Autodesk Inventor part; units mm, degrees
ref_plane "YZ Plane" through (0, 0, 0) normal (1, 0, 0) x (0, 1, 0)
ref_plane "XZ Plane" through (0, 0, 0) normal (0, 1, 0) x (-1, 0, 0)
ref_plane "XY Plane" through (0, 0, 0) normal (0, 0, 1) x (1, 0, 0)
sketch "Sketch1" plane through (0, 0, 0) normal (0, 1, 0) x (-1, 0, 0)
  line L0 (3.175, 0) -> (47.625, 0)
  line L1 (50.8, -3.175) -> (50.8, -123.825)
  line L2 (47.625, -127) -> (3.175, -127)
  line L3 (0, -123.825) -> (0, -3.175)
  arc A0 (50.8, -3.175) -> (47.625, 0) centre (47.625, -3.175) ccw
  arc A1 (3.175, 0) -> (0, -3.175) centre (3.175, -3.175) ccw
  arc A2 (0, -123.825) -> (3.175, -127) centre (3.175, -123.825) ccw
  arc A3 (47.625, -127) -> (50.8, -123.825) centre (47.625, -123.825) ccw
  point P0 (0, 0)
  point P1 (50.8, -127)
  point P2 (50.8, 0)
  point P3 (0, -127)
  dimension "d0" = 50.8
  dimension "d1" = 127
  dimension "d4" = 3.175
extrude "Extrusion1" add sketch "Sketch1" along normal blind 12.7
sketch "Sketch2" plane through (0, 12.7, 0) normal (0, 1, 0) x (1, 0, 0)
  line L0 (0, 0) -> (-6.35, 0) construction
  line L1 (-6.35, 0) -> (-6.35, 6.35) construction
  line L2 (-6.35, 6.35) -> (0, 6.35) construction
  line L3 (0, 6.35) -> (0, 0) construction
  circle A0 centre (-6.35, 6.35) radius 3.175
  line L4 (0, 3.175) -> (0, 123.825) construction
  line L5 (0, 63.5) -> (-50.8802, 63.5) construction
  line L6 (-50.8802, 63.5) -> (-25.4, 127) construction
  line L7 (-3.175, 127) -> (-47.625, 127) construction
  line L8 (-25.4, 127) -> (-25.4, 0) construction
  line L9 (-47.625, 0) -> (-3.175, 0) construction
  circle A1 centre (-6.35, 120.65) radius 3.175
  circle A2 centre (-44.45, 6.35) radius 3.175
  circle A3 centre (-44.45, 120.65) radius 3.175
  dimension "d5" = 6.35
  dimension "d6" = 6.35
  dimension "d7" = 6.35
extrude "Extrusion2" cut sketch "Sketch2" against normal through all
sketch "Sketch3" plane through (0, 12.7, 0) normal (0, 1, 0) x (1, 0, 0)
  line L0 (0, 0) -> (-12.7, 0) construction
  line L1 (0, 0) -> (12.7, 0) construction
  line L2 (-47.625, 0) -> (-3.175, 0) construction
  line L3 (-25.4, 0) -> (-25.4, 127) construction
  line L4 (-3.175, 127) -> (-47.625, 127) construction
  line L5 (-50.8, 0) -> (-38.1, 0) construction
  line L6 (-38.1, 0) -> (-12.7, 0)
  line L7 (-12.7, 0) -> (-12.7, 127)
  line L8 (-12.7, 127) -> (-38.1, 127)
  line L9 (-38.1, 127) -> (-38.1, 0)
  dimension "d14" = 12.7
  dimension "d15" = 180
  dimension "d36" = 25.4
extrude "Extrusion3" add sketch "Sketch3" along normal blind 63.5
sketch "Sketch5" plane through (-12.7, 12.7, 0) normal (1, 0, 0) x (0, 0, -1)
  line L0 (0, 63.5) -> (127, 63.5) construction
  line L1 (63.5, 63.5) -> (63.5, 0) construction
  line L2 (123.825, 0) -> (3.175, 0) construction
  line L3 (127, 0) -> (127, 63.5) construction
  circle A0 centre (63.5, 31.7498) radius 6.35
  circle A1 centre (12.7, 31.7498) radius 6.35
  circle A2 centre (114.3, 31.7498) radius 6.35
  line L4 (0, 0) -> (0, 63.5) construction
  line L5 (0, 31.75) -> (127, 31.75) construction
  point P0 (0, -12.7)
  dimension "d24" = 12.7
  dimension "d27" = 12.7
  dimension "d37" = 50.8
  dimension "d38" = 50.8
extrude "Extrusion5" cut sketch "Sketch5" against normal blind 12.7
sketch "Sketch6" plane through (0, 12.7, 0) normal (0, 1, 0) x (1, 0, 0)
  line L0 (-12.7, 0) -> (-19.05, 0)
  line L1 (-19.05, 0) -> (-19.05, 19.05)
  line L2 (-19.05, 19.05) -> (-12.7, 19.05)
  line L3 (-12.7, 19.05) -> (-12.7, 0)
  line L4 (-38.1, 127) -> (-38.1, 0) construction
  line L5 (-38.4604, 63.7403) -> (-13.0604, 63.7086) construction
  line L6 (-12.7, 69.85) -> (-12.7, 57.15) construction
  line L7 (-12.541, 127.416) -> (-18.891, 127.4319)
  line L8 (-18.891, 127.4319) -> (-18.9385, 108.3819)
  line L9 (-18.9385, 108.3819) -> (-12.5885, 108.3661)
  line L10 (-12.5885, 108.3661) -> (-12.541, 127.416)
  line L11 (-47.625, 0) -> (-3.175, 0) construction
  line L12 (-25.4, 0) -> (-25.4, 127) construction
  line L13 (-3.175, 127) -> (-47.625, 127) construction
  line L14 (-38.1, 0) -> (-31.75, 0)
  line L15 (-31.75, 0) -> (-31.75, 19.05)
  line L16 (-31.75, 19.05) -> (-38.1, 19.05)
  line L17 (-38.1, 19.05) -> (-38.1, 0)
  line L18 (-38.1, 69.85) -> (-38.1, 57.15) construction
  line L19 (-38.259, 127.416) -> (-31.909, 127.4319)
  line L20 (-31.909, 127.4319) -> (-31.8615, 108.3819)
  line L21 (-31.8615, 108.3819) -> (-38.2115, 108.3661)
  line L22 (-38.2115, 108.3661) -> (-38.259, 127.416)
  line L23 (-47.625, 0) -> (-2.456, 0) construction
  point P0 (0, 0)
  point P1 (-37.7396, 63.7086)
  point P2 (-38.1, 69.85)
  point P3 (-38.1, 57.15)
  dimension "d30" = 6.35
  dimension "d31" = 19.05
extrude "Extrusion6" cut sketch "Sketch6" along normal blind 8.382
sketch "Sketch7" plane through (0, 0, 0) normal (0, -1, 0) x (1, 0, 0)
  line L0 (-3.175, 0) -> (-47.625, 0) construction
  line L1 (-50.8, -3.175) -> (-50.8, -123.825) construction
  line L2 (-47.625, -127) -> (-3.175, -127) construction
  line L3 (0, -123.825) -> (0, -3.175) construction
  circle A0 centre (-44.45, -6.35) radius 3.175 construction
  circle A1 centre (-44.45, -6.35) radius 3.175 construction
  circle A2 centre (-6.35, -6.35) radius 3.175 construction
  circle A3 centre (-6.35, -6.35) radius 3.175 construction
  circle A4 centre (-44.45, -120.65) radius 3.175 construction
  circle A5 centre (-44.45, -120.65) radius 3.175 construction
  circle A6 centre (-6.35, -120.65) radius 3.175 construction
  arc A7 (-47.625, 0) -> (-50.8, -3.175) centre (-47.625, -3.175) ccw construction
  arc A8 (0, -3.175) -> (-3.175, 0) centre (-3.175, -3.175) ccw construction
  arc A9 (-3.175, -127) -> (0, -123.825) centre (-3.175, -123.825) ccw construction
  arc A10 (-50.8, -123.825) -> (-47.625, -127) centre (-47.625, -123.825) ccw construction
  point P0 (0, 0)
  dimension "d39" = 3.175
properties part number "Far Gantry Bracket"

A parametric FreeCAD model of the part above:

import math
import FreeCAD as App
import Part
import Sketcher
Q = App.Units.Quantity

doc = App.newDocument("Part")
body = doc.addObject("PartDesign::Body", "Body")

# Sketch on XZ plane
sketch1 = doc.addObject("Sketcher::SketchObject", "Sketch")
body.addObject(sketch1)
sketch1.AttachmentSupport = (doc.XZ_Plane, [""])
sketch1.MapMode = "FlatFace"
sketch1.addGeometry(Part.LineSegment(App.Vector(-47.6, 0, 0), App.Vector(-3.2, 0, 0)), False)
sketch1.addGeometry(Part.ArcOfCircle(Part.Circle(App.Vector(-3.2, -3.2, 0), App.Vector(0, 0, 1), 3.2), math.radians(0), math.radians(90)), False)
sketch1.addGeometry(Part.LineSegment(App.Vector(0, -3.2, 0), App.Vector(0, -123.8, 0)), False)
sketch1.addGeometry(Part.ArcOfCircle(Part.Circle(App.Vector(-3.2, -123.8, 0), App.Vector(0, 0, 1), 3.2), math.radians(-90), math.radians(0)), False)
sketch1.addGeometry(Part.LineSegment(App.Vector(-3.2, -127, 0), App.Vector(-47.6, -127, 0)), False)
sketch1.addGeometry(Part.ArcOfCircle(Part.Circle(App.Vector(-47.6, -123.8, 0), App.Vector(0, 0, 1), 3.2), math.radians(180), math.radians(270)), False)
sketch1.addGeometry(Part.LineSegment(App.Vector(-50.8, -123.8, 0), App.Vector(-50.8, -3.2, 0)), False)
sketch1.addGeometry(Part.ArcOfCircle(Part.Circle(App.Vector(-47.6, -3.2, 0), App.Vector(0, 0, 1), 3.2), math.radians(90), math.radians(180)), False)
sketch1.addConstraint(Sketcher.Constraint("Tangent", 0, 2, 1, 2))
sketch1.addConstraint(Sketcher.Constraint("Tangent", 1, 1, 2, 1))
sketch1.addConstraint(Sketcher.Constraint("Tangent", 2, 2, 3, 2))
sketch1.addConstraint(Sketcher.Constraint("Tangent", 3, 1, 4, 1))
sketch1.addConstraint(Sketcher.Constraint("Tangent", 4, 2, 5, 2))
sketch1.addConstraint(Sketcher.Constraint("Tangent", 5, 1, 6, 1))
sketch1.addConstraint(Sketcher.Constraint("Tangent", 6, 2, 7, 2))
sketch1.addConstraint(Sketcher.Constraint("Tangent", 7, 1, 0, 1))
sketch1.addConstraint(Sketcher.Constraint("Horizontal", 0))
sketch1.addConstraint(Sketcher.Constraint("Vertical", 2))
sketch1.addConstraint(Sketcher.Constraint("Horizontal", 4))
sketch1.addConstraint(Sketcher.Constraint("Vertical", 6))
sketch1.addConstraint(Sketcher.Constraint("Equal", 1, 3))
sketch1.addConstraint(Sketcher.Constraint("Equal", 3, 5))
sketch1.addConstraint(Sketcher.Constraint("Equal", 5, 7))
sketch1.addConstraint(Sketcher.Constraint("PointOnObject", 0, 2, -1))
sketch1.addConstraint(Sketcher.Constraint("PointOnObject", 1, 1, -2))
sketch1.addConstraint(Sketcher.Constraint("DistanceY", 3, 1, -1, 1, Q("5 in")))
sketch1.addConstraint(Sketcher.Constraint("DistanceX", 5, 1, -1, 1, Q("2 in")))
sketch1.addConstraint(Sketcher.Constraint("Radius", 1, Q("0.125 in")))
pad1 = doc.addObject("PartDesign::Pad", "Pad")
body.addObject(pad1)
pad1.Profile = sketch1
pad1.Length = Q("0.5 in")
pad1.Reversed = True

# Sketch on XZ plane
sketch2 = doc.addObject("Sketcher::SketchObject", "Sketch001")
body.addObject(sketch2)
sketch2.AttachmentSupport = (doc.XZ_Plane, [""])
sketch2.MapMode = "FlatFace"
sketch2.AttachmentOffset = App.Placement(App.Vector(0, 0, -0.5 * 25.4), App.Rotation())
sketch2.addGeometry(Part.Circle(App.Vector(-6.3, -6.3, 0), App.Vector(0, 0, 1), 3.2), False)
sketch2.addGeometry(Part.Circle(App.Vector(-6.3, -120.7, 0), App.Vector(0, 0, 1), 3.2), False)
sketch2.addGeometry(Part.Circle(App.Vector(-44.5, -6.3, 0), App.Vector(0, 0, 1), 3.2), False)
sketch2.addGeometry(Part.Circle(App.Vector(-44.5, -120.7, 0), App.Vector(0, 0, 1), 3.2), False)
sketch2.addConstraint(Sketcher.Constraint("Equal", 0, 1))
sketch2.addConstraint(Sketcher.Constraint("Equal", 1, 2))
sketch2.addConstraint(Sketcher.Constraint("Equal", 2, 3))
sketch2.addConstraint(Sketcher.Constraint("Horizontal", 0, 3, 2, 3))
sketch2.addConstraint(Sketcher.Constraint("Horizontal", 1, 3, 3, 3))
sketch2.addConstraint(Sketcher.Constraint("Vertical", 0, 3, 1, 3))
sketch2.addConstraint(Sketcher.Constraint("Vertical", 2, 3, 3, 3))
sketch2.addConstraint(Sketcher.Constraint("Diameter", 0, Q("0.25 in")))
sketch2.addConstraint(Sketcher.Constraint("DistanceX", 0, 3, -1, 1, Q("0.25 in")))
sketch2.addConstraint(Sketcher.Constraint("DistanceY", 0, 3, -1, 1, Q("0.25 in")))
sketch2.addConstraint(Sketcher.Constraint("DistanceY", 1, 3, 0, 3, Q("4.5 in")))
sketch2.addConstraint(Sketcher.Constraint("DistanceX", 2, 3, 0, 3, Q("1.5 in")))
pocket1 = doc.addObject("PartDesign::Pocket", "Pocket")
body.addObject(pocket1)
pocket1.Profile = sketch2
pocket1.Type = "ThroughAll"
pocket1.Reversed = True

# Sketch on XZ plane
sketch3 = doc.addObject("Sketcher::SketchObject", "Sketch002")
body.addObject(sketch3)
sketch3.AttachmentSupport = (doc.XZ_Plane, [""])
sketch3.MapMode = "FlatFace"
sketch3.AttachmentOffset = App.Placement(App.Vector(0, 0, -0.5 * 25.4), App.Rotation())
sketch3.addGeometry(Part.LineSegment(App.Vector(-38, -127, 0), App.Vector(-38, 0, 0)), False)
sketch3.addGeometry(Part.LineSegment(App.Vector(-38, 0, 0), App.Vector(-13, 0, 0)), False)
sketch3.addGeometry(Part.LineSegment(App.Vector(-13, 0, 0), App.Vector(-13, -127, 0)), False)
sketch3.addGeometry(Part.LineSegment(App.Vector(-13, -127, 0), App.Vector(-38, -127, 0)), False)
sketch3.addConstraint(Sketcher.Constraint("Coincident", 0, 2, 1, 1))
sketch3.addConstraint(Sketcher.Constraint("Coincident", 1, 2, 2, 1))
sketch3.addConstraint(Sketcher.Constraint("Coincident", 2, 2, 3, 1))
sketch3.addConstraint(Sketcher.Constraint("Coincident", 3, 2, 0, 1))
sketch3.addConstraint(Sketcher.Constraint("Vertical", 0))
sketch3.addConstraint(Sketcher.Constraint("Horizontal", 1))
sketch3.addConstraint(Sketcher.Constraint("Vertical", 2))
sketch3.addConstraint(Sketcher.Constraint("Horizontal", 3))
sketch3.addConstraint(Sketcher.Constraint("PointOnObject", 0, 2, -1))
sketch3.addConstraint(Sketcher.Constraint("DistanceX", 1, 1, 1, 2, Q("1 in")))
sketch3.addConstraint(Sketcher.Constraint("DistanceX", 1, 2, -1, 1, Q("0.5 in")))
sketch3.addConstraint(Sketcher.Constraint("DistanceY", 0, 1, 0, 2, Q("5 in")))
pad2 = doc.addObject("PartDesign::Pad", "Pad001")
body.addObject(pad2)
pad2.Profile = sketch3
pad2.Length = Q("2.5 in")
pad2.Reversed = True

# Sketch on YZ plane
sketch4 = doc.addObject("Sketcher::SketchObject", "Sketch003")
body.addObject(sketch4)
sketch4.AttachmentSupport = (doc.YZ_Plane, [""])
sketch4.MapMode = "FlatFace"
sketch4.AttachmentOffset = App.Placement(App.Vector(0, 0, -0.5 * 25.4), App.Rotation())
sketch4.addGeometry(Part.Circle(App.Vector(44, -64, 0), App.Vector(0, 0, 1), 6), False)
sketch4.addGeometry(Part.Circle(App.Vector(44, -13, 0), App.Vector(0, 0, 1), 6), False)
sketch4.addGeometry(Part.Circle(App.Vector(44, -114, 0), App.Vector(0, 0, 1), 6), False)
sketch4.addConstraint(Sketcher.Constraint("Equal", 0, 1))
sketch4.addConstraint(Sketcher.Constraint("Equal", 1, 2))
sketch4.addConstraint(Sketcher.Constraint("Vertical", 0, 3, 1, 3))
sketch4.addConstraint(Sketcher.Constraint("Vertical", 1, 3, 2, 3))
sketch4.addConstraint(Sketcher.Constraint("Diameter", 0, Q("0.5 in")))
sketch4.addConstraint(Sketcher.Constraint("DistanceY", 0, 3, 1, 3, Q("2 in")))
sketch4.addConstraint(Sketcher.Constraint("DistanceY", 2, 3, 0, 3, Q("2 in")))
sketch4.addConstraint(Sketcher.Constraint("DistanceY", 1, 3, -1, 1, Q("0.5 in")))
sketch4.addConstraint(Sketcher.Constraint("DistanceX", -1, 1, 0, 3, Q("1.75 in")))
pocket2 = doc.addObject("PartDesign::Pocket", "Pocket001")
body.addObject(pocket2)
pocket2.Profile = sketch4
pocket2.Length = Q("0.5 in")

# Sketch on XZ plane
sketch5 = doc.addObject("Sketcher::SketchObject", "Sketch004")
body.addObject(sketch5)
sketch5.AttachmentSupport = (doc.XZ_Plane, [""])
sketch5.MapMode = "FlatFace"
sketch5.AttachmentOffset = App.Placement(App.Vector(0, 0, -0.5 * 25.4), App.Rotation())
sketch5.addGeometry(Part.LineSegment(App.Vector(-19, 0, 0), App.Vector(-13, 0, 0)), False)
sketch5.addGeometry(Part.LineSegment(App.Vector(-13, 0, 0), App.Vector(-13, -19, 0)), False)
sketch5.addGeometry(Part.LineSegment(App.Vector(-13, -19, 0), App.Vector(-19, -19, 0)), False)
sketch5.addGeometry(Part.LineSegment(App.Vector(-19, -19, 0), App.Vector(-19, 0, 0)), False)
sketch5.addGeometry(Part.LineSegment(App.Vector(-13, -108, 0), App.Vector(-13, -127, 0)), False)
sketch5.addGeometry(Part.LineSegment(App.Vector(-13, -127, 0), App.Vector(-19, -127, 0)), False)
sketch5.addGeometry(Part.LineSegment(App.Vector(-19, -127, 0), App.Vector(-19, -108, 0)), False)
sketch5.addGeometry(Part.LineSegment(App.Vector(-19, -108, 0), App.Vector(-13, -108, 0)), False)
sketch5.addGeometry(Part.LineSegment(App.Vector(-38, -19, 0), App.Vector(-38, 0, 0)), False)
sketch5.addGeometry(Part.LineSegment(App.Vector(-38, 0, 0), App.Vector(-32, 0, 0)), False)
sketch5.addGeometry(Part.LineSegment(App.Vector(-32, 0, 0), App.Vector(-32, -19, 0)), False)
sketch5.addGeometry(Part.LineSegment(App.Vector(-32, -19, 0), App.Vector(-38, -19, 0)), False)
sketch5.addGeometry(Part.LineSegment(App.Vector(-32, -127, 0), App.Vector(-38, -127, 0)), False)
sketch5.addGeometry(Part.LineSegment(App.Vector(-38, -127, 0), App.Vector(-38, -108, 0)), False)
sketch5.addGeometry(Part.LineSegment(App.Vector(-38, -108, 0), App.Vector(-32, -108, 0)), False)
sketch5.addGeometry(Part.LineSegment(App.Vector(-32, -108, 0), App.Vector(-32, -127, 0)), False)
sketch5.addConstraint(Sketcher.Constraint("Coincident", 0, 2, 1, 1))
sketch5.addConstraint(Sketcher.Constraint("Coincident", 1, 2, 2, 1))
sketch5.addConstraint(Sketcher.Constraint("Coincident", 2, 2, 3, 1))
sketch5.addConstraint(Sketcher.Constraint("Coincident", 3, 2, 0, 1))
sketch5.addConstraint(Sketcher.Constraint("Coincident", 4, 2, 5, 1))
sketch5.addConstraint(Sketcher.Constraint("Coincident", 5, 2, 6, 1))
sketch5.addConstraint(Sketcher.Constraint("Coincident", 6, 2, 7, 1))
sketch5.addConstraint(Sketcher.Constraint("Coincident", 7, 2, 4, 1))
sketch5.addConstraint(Sketcher.Constraint("Coincident", 8, 2, 9, 1))
sketch5.addConstraint(Sketcher.Constraint("Coincident", 9, 2, 10, 1))
sketch5.addConstraint(Sketcher.Constraint("Coincident", 10, 2, 11, 1))
sketch5.addConstraint(Sketcher.Constraint("Coincident", 11, 2, 8, 1))
sketch5.addConstraint(Sketcher.Constraint("Coincident", 12, 2, 13, 1))
sketch5.addConstraint(Sketcher.Constraint("Coincident", 13, 2, 14, 1))
sketch5.addConstraint(Sketcher.Constraint("Coincident", 14, 2, 15, 1))
sketch5.addConstraint(Sketcher.Constraint("Coincident", 15, 2, 12, 1))
sketch5.addConstraint(Sketcher.Constraint("Horizontal", 0))
sketch5.addConstraint(Sketcher.Constraint("Vertical", 1))
sketch5.addConstraint(Sketcher.Constraint("Horizontal", 2))
sketch5.addConstraint(Sketcher.Constraint("Vertical", 3))
sketch5.addConstraint(Sketcher.Constraint("Vertical", 8))
sketch5.addConstraint(Sketcher.Constraint("Horizontal", 9))
sketch5.addConstraint(Sketcher.Constraint("Vertical", 10))
sketch5.addConstraint(Sketcher.Constraint("Horizontal", 11))
sketch5.addConstraint(Sketcher.Constraint("PointOnObject", 0, 2, -1))
sketch5.addConstraint(Sketcher.Constraint("PointOnObject", 8, 2, -1))
sketch5.addConstraint(Sketcher.Constraint("Perpendicular", 4, 5))
sketch5.addConstraint(Sketcher.Constraint("Perpendicular", 5, 6))
sketch5.addConstraint(Sketcher.Constraint("Perpendicular", 6, 7))
sketch5.addConstraint(Sketcher.Constraint("Perpendicular", 12, 13))
sketch5.addConstraint(Sketcher.Constraint("Perpendicular", 13, 14))
sketch5.addConstraint(Sketcher.Constraint("Perpendicular", 14, 15))
sketch5.addConstraint(Sketcher.Constraint("Horizontal", 2, 2, 10, 2))
sketch5.addConstraint(Sketcher.Constraint("Horizontal", 4, 2, 12, 2))
sketch5.addConstraint(Sketcher.Constraint("Horizontal", 7, 2, 13, 2))
sketch5.addConstraint(Sketcher.Constraint("Horizontal", 6, 2, 14, 2))
sketch5.addConstraint(Sketcher.Constraint("Equal", 2, 9))
sketch5.addConstraint(Sketcher.Constraint("Equal", 7, 12))
sketch5.addConstraint(Sketcher.Constraint("DistanceX", 0, 1, 0, 2, Q("0.25 in")))
sketch5.addConstraint(Sketcher.Constraint("DistanceY", 1, 2, 1, 1, Q("0.75 in")))
sketch5.addConstraint(Sketcher.Constraint("Distance", 4, Q("0.75 in")))
sketch5.addConstraint(Sketcher.Constraint("Distance", 5, Q("0.25 in")))
sketch5.addConstraint(Sketcher.Constraint("DistanceX", 2, 2, -1, 1, Q("0.75 in")))
sketch5.addConstraint(Sketcher.Constraint("DistanceX", 8, 2, 3, 2, Q("0.75 in")))
sketch5.addConstraint(Sketcher.Constraint("DistanceY", 5, 2, -1, 1, Q("5.017 in")))
sketch5.addConstraint(Sketcher.Constraint("DistanceX", 6, 2, -1, 1, Q("0.7456 in")))
sketch5.addConstraint(Sketcher.Constraint("DistanceX", 13, 2, -1, 1, Q("1.5044 in")))
sketch5.addConstraint(Sketcher.Constraint("DistanceX", 4, 2, -1, 1, Q("12.541 mm")))
pocket3 = doc.addObject("PartDesign::Pocket", "Pocket002")
body.addObject(pocket3)
pocket3.Profile = sketch5
pocket3.Length = Q("0.33 in")

doc.recompute()
